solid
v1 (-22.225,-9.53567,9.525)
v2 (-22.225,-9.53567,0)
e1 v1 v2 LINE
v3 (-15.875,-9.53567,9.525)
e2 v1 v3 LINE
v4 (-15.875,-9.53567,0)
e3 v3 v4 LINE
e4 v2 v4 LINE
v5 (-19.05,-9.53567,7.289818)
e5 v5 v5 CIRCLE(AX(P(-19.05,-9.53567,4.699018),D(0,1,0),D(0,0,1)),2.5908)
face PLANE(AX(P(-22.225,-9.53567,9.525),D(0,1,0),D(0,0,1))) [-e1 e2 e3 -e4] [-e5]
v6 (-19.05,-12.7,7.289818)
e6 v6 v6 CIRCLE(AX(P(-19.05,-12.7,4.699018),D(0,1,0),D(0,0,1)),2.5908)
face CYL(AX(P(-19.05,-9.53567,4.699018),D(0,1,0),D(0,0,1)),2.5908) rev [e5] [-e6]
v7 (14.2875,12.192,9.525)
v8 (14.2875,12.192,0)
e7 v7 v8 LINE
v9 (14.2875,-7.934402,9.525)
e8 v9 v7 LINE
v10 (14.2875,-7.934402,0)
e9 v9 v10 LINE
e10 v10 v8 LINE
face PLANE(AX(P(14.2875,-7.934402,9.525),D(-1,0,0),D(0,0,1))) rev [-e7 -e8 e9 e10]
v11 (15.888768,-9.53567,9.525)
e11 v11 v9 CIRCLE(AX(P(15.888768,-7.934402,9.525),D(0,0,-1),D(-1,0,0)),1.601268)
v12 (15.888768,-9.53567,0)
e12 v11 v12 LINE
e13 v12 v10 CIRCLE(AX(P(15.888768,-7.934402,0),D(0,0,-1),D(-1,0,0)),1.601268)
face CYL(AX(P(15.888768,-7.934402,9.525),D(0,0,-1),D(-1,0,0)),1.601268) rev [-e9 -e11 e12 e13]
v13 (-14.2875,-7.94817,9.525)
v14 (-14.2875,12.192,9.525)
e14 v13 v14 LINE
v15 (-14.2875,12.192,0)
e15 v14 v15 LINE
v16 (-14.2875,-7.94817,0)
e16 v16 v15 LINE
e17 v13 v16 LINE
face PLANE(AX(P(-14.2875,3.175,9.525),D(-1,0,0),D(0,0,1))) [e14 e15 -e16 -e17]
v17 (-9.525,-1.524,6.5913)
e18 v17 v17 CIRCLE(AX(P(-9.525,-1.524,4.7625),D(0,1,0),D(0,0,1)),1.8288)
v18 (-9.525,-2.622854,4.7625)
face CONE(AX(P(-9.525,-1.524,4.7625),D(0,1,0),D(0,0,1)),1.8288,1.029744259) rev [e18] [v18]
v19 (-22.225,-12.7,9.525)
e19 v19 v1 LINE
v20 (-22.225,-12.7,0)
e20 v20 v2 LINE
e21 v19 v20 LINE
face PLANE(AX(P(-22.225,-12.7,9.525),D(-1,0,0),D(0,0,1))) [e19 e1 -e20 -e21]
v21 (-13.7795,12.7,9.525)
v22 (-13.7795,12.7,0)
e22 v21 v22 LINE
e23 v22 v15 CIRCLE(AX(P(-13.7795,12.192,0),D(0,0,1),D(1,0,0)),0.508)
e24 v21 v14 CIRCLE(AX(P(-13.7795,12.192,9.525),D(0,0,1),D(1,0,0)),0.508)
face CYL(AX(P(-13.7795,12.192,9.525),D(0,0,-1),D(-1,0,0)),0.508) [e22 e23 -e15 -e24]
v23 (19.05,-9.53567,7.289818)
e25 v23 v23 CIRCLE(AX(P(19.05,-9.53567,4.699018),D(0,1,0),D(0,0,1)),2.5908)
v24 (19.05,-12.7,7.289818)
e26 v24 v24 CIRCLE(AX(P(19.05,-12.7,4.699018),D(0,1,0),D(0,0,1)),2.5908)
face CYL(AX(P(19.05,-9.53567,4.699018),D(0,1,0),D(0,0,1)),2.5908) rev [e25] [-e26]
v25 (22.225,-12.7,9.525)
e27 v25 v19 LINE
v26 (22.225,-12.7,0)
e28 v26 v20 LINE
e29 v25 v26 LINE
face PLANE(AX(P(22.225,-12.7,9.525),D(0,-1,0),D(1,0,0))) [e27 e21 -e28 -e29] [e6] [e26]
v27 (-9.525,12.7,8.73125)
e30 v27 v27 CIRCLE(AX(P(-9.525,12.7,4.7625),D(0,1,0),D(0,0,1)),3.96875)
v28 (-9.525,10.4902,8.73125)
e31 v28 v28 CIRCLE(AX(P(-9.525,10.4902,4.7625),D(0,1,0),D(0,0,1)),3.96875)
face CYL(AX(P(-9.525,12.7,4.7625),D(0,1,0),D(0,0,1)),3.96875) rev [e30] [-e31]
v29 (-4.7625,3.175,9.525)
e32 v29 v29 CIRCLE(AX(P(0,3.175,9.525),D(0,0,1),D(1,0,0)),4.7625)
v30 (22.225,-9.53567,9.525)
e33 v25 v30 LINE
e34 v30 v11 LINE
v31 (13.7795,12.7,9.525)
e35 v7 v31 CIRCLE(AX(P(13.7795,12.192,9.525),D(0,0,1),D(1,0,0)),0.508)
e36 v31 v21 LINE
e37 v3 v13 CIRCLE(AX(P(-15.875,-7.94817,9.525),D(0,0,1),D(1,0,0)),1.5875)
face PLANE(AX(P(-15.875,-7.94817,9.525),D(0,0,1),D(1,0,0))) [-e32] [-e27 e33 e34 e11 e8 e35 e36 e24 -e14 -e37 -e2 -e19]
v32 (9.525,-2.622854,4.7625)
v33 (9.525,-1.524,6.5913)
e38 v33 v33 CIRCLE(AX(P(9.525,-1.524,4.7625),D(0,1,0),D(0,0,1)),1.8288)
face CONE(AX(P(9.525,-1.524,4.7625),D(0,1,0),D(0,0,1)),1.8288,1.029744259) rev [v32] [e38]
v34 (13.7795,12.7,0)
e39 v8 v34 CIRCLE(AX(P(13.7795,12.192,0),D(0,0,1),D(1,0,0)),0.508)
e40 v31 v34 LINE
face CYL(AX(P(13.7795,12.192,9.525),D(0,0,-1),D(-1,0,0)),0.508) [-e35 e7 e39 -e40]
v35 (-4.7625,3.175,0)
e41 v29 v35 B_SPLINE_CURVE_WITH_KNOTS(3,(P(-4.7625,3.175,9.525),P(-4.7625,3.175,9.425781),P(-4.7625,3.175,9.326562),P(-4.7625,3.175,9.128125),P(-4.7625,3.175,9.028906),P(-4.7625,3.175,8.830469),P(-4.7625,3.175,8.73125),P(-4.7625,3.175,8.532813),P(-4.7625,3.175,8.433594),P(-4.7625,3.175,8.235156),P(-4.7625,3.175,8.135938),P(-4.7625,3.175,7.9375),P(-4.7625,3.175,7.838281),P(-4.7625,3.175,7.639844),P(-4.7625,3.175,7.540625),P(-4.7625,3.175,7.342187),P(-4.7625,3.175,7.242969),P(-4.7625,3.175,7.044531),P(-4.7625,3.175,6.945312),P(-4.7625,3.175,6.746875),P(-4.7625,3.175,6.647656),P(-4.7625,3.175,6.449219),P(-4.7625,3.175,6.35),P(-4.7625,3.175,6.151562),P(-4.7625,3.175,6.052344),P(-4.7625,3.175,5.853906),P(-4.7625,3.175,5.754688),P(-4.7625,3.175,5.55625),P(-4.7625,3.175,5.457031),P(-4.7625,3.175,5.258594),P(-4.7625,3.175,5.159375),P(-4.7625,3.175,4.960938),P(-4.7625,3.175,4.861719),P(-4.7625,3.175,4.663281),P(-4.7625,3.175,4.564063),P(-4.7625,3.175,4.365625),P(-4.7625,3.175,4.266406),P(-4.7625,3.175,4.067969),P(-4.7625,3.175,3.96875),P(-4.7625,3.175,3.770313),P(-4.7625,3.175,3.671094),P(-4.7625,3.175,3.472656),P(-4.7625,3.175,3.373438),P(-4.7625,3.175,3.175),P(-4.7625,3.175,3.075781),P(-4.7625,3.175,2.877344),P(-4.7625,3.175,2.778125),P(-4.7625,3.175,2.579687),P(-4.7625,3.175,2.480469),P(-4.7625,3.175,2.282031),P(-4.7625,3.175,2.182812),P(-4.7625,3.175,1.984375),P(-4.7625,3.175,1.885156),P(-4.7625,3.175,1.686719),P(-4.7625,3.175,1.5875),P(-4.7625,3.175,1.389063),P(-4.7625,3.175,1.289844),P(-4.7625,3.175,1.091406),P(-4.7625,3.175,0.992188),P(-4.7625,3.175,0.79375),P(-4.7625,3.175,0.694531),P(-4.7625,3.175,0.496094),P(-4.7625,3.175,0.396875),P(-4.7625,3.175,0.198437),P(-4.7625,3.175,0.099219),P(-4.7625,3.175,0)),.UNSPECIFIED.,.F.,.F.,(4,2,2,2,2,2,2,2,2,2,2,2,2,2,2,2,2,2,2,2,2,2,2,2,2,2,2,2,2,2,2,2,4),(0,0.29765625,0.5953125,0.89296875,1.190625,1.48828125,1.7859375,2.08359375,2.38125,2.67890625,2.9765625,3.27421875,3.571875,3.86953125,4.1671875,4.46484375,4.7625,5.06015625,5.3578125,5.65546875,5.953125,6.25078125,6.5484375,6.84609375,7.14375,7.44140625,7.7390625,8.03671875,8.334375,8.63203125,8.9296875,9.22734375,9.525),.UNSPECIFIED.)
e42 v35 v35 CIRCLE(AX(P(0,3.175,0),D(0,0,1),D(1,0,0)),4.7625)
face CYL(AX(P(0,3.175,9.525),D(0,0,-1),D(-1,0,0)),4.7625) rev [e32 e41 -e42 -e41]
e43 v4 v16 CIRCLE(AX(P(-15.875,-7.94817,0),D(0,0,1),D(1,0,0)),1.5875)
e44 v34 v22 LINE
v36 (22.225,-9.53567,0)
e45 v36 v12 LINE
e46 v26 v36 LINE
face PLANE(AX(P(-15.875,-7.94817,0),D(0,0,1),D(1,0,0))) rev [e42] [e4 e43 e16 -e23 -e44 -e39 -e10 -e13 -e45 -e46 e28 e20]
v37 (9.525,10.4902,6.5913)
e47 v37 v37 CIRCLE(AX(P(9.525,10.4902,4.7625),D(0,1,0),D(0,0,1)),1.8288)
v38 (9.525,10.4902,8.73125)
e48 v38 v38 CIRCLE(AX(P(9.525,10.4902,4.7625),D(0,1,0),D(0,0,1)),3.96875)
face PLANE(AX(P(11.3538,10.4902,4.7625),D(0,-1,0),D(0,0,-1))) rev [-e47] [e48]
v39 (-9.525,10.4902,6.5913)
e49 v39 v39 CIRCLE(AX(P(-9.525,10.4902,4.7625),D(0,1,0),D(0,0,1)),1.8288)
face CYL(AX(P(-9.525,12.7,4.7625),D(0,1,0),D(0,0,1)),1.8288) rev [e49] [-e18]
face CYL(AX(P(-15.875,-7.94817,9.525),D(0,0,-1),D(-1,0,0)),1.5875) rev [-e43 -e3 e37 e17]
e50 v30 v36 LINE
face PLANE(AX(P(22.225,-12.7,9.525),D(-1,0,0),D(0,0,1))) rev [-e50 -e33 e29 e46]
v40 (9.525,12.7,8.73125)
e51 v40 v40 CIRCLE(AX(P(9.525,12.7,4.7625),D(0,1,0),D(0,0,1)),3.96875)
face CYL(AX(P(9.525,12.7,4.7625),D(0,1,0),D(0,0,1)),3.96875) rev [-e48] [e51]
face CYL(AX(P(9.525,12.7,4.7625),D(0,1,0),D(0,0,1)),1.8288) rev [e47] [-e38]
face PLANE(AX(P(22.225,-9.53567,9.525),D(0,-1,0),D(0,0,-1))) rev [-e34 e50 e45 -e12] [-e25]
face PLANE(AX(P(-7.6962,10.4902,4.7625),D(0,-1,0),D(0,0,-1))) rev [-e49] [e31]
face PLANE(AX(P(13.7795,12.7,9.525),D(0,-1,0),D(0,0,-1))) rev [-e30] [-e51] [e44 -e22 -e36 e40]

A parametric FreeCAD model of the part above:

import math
import FreeCAD as App
import Part
import Sketcher

V = App.Vector
Q = App.Units.Quantity

doc = App.newDocument("Part")
body = doc.addObject("PartDesign::Body", "Body")

# Sketch on XY plane
sketch1 = body.newObject("Sketcher::SketchObject", "Sketch")
sketch1.AttachmentSupport = (doc.getObject("XY_Plane"), [""])
sketch1.MapMode = "FlatFace"
sketch1.addGeometry(Part.LineSegment(V(-22.2, -12.7, 0), V(22.2, -12.7, 0)), False)
sketch1.addGeometry(Part.LineSegment(V(22.2, -12.7, 0), V(22.2, -9.5, 0)), False)
sketch1.addGeometry(Part.LineSegment(V(22.2, -9.5, 0), V(15.9, -9.5, 0)), False)
sketch1.addGeometry(Part.ArcOfCircle(Part.Circle(V(15.9, -7.9, 0), V(0, 0, 1), 1.6), math.radians(-180), math.radians(-90)), False)
sketch1.addGeometry(Part.LineSegment(V(14.3, -7.9, 0), V(14.3, 12.2, 0)), False)
sketch1.addGeometry(Part.ArcOfCircle(Part.Circle(V(13.8, 12.2, 0), V(0, 0, 1), 0.5), math.radians(0), math.radians(90)), False)
sketch1.addGeometry(Part.LineSegment(V(13.8, 12.7, 0), V(-13.8, 12.7, 0)), False)
sketch1.addGeometry(Part.ArcOfCircle(Part.Circle(V(-13.8, 12.2, 0), V(0, 0, 1), 0.5), math.radians(90), math.radians(180)), False)
sketch1.addGeometry(Part.LineSegment(V(-14.3, 12.2, 0), V(-14.3, -7.9, 0)), False)
sketch1.addGeometry(Part.ArcOfCircle(Part.Circle(V(-15.9, -7.9, 0), V(0, 0, 1), 1.6), math.radians(-90), math.radians(0)), False)
sketch1.addGeometry(Part.LineSegment(V(-15.9, -9.5, 0), V(-22.2, -9.5, 0)), False)
sketch1.addGeometry(Part.LineSegment(V(-22.2, -9.5, 0), V(-22.2, -12.7, 0)), False)
sketch1.addGeometry(Part.Circle(V(0, 3.2, 0), V(0, 0, 1), 4.8), False)
sketch1.addConstraint(Sketcher.Constraint("Coincident", 0, 2, 1, 1))
sketch1.addConstraint(Sketcher.Constraint("Coincident", 1, 2, 2, 1))
sketch1.addConstraint(Sketcher.Constraint("Tangent", 2, 2, 3, 2))
sketch1.addConstraint(Sketcher.Constraint("Tangent", 3, 1, 4, 1))
sketch1.addConstraint(Sketcher.Constraint("Tangent", 4, 2, 5, 1))
sketch1.addConstraint(Sketcher.Constraint("Tangent", 5, 2, 6, 1))
sketch1.addConstraint(Sketcher.Constraint("Tangent", 6, 2, 7, 1))
sketch1.addConstraint(Sketcher.Constraint("Tangent", 7, 2, 8, 1))
sketch1.addConstraint(Sketcher.Constraint("Tangent", 8, 2, 9, 2))
sketch1.addConstraint(Sketcher.Constraint("Tangent", 9, 1, 10, 1))
sketch1.addConstraint(Sketcher.Constraint("Coincident", 10, 2, 11, 1))
sketch1.addConstraint(Sketcher.Constraint("Coincident", 11, 2, 0, 1))
sketch1.addConstraint(Sketcher.Constraint("Horizontal", 0))
sketch1.addConstraint(Sketcher.Constraint("Vertical", 1))
sketch1.addConstraint(Sketcher.Constraint("Horizontal", 2))
sketch1.addConstraint(Sketcher.Constraint("Vertical", 4))
sketch1.addConstraint(Sketcher.Constraint("Horizontal", 6))
sketch1.addConstraint(Sketcher.Constraint("Vertical", 8))
sketch1.addConstraint(Sketcher.Constraint("Horizontal", 10))
sketch1.addConstraint(Sketcher.Constraint("Vertical", 11))
sketch1.addConstraint(Sketcher.Constraint("Equal", 5, 7))
sketch1.addConstraint(Sketcher.Constraint("Symmetric", 1, 2, 10, 2, -2))
sketch1.addConstraint(Sketcher.Constraint("PointOnObject", 12, 3, -2))
sketch1.addConstraint(Sketcher.Constraint("Radius", 5, Q("0.02 in")))
sketch1.addConstraint(Sketcher.Constraint("Diameter", 12, Q("0.375 in")))
sketch1.addConstraint(Sketcher.Constraint("Radius", 9, Q("0.0625 in")))
sketch1.addConstraint(Sketcher.Constraint("DistanceX", 0, 1, 0, 2, Q("1.75 in")))
sketch1.addConstraint(Sketcher.Constraint("DistanceX", 10, 2, 10, 1, Q("0.25 in")))
sketch1.addConstraint(Sketcher.Constraint("DistanceY", 0, 2, -1, 1, Q("0.5 in")))
sketch1.addConstraint(Sketcher.Constraint("DistanceY", -1, 1, 5, 2, Q("0.5 in")))
sketch1.addConstraint(Sketcher.Constraint("DistanceX", 6, 2, 6, 1, Q("1.085 in")))
sketch1.addConstraint(Sketcher.Constraint("DistanceY", -1, 1, 12, 3, Q("0.125 in")))
sketch1.addConstraint(Sketcher.Constraint("DistanceY", 4, 1, 4, 2, 20.126402))
sketch1.addConstraint(Sketcher.Constraint("Radius", 3, 1.601268))
pad1 = body.newObject("PartDesign::Pad", "Pad")
pad1.Profile = sketch1
pad1.Length = Q("0.375 in")

# Sketch on XZ plane
sketch2 = body.newObject("Sketcher::SketchObject", "Sketch001")
sketch2.AttachmentSupport = (doc.getObject("XZ_Plane"), [""])
sketch2.MapMode = "FlatFace"
sketch2.AttachmentOffset = App.Placement(V(0, 0, -0.5 * 25.4), App.Rotation())
sketch2.addGeometry(Part.Circle(V(9.5, 4.8, 0), V(0, 0, 1), 1.8), False)
sketch2.addGeometry(Part.Circle(V(-9.5, 4.8, 0), V(0, 0, 1), 1.8), False)
sketch2.addConstraint(Sketcher.Constraint("Equal", 0, 1))
sketch2.addConstraint(Sketcher.Constraint("Symmetric", 0, 3, 1, 3, -2))
sketch2.addConstraint(Sketcher.Constraint("Diameter", 0, Q("0.144 in")))
sketch2.addConstraint(Sketcher.Constraint("DistanceX", 1, 3, 0, 3, Q("0.75 in")))
sketch2.addConstraint(Sketcher.Constraint("DistanceY", -1, 1, 0, 3, Q("0.1875 in")))
doc.recompute()
hole = body.newObject("PartDesign::Hole", "Hole")
hole.Profile = sketch2
hole.ThreadType = "None"
hole.Diameter = Q("0.144 in")
hole.DepthType = "Dimension"
hole.Depth = Q("0.56 in")
hole.DrillPoint = "Angled"
hole.DrillPointAngle = 118
hole.HoleCutType = "Counterbore"
hole.HoleCutDiameter = Q("0.3125 in")
hole.HoleCutDepth = Q("0.087 in")
hole.Reversed = True

# Sketch on XZ plane
sketch3 = body.newObject("Sketcher::SketchObject", "Sketch002")
sketch3.AttachmentSupport = (doc.getObject("XZ_Plane"), [""])
sketch3.MapMode = "FlatFace"
sketch3.AttachmentOffset = App.Placement(V(0, 0, 9.53567), App.Rotation())
sketch3.addGeometry(Part.Circle(V(-19.1, 4.7, 0), V(0, 0, 1), 2.6), False)
sketch3.addGeometry(Part.Circle(V(19.1, 4.7, 0), V(0, 0, 1), 2.6), False)
sketch3.addConstraint(Sketcher.Constraint("Equal", 0, 1))
sketch3.addConstraint(Sketcher.Constraint("Symmetric", 0, 3, 1, 3, -2))
sketch3.addConstraint(Sketcher.Constraint("Diameter", 0, Q("0.204 in")))
sketch3.addConstraint(Sketcher.Constraint("DistanceX", 0, 3, 1, 3, Q("1.5 in")))
sketch3.addConstraint(Sketcher.Constraint("DistanceY", -1, 1, 0, 3, 4.699018))
doc.recompute()
hole2 = body.newObject("PartDesign::Hole", "Hole001")
hole2.Profile = sketch3
hole2.ThreadType = "None"
hole2.Diameter = Q("0.204 in")
hole2.DepthType = "ThroughAll"
hole2.Reversed = True

doc.recompute()
